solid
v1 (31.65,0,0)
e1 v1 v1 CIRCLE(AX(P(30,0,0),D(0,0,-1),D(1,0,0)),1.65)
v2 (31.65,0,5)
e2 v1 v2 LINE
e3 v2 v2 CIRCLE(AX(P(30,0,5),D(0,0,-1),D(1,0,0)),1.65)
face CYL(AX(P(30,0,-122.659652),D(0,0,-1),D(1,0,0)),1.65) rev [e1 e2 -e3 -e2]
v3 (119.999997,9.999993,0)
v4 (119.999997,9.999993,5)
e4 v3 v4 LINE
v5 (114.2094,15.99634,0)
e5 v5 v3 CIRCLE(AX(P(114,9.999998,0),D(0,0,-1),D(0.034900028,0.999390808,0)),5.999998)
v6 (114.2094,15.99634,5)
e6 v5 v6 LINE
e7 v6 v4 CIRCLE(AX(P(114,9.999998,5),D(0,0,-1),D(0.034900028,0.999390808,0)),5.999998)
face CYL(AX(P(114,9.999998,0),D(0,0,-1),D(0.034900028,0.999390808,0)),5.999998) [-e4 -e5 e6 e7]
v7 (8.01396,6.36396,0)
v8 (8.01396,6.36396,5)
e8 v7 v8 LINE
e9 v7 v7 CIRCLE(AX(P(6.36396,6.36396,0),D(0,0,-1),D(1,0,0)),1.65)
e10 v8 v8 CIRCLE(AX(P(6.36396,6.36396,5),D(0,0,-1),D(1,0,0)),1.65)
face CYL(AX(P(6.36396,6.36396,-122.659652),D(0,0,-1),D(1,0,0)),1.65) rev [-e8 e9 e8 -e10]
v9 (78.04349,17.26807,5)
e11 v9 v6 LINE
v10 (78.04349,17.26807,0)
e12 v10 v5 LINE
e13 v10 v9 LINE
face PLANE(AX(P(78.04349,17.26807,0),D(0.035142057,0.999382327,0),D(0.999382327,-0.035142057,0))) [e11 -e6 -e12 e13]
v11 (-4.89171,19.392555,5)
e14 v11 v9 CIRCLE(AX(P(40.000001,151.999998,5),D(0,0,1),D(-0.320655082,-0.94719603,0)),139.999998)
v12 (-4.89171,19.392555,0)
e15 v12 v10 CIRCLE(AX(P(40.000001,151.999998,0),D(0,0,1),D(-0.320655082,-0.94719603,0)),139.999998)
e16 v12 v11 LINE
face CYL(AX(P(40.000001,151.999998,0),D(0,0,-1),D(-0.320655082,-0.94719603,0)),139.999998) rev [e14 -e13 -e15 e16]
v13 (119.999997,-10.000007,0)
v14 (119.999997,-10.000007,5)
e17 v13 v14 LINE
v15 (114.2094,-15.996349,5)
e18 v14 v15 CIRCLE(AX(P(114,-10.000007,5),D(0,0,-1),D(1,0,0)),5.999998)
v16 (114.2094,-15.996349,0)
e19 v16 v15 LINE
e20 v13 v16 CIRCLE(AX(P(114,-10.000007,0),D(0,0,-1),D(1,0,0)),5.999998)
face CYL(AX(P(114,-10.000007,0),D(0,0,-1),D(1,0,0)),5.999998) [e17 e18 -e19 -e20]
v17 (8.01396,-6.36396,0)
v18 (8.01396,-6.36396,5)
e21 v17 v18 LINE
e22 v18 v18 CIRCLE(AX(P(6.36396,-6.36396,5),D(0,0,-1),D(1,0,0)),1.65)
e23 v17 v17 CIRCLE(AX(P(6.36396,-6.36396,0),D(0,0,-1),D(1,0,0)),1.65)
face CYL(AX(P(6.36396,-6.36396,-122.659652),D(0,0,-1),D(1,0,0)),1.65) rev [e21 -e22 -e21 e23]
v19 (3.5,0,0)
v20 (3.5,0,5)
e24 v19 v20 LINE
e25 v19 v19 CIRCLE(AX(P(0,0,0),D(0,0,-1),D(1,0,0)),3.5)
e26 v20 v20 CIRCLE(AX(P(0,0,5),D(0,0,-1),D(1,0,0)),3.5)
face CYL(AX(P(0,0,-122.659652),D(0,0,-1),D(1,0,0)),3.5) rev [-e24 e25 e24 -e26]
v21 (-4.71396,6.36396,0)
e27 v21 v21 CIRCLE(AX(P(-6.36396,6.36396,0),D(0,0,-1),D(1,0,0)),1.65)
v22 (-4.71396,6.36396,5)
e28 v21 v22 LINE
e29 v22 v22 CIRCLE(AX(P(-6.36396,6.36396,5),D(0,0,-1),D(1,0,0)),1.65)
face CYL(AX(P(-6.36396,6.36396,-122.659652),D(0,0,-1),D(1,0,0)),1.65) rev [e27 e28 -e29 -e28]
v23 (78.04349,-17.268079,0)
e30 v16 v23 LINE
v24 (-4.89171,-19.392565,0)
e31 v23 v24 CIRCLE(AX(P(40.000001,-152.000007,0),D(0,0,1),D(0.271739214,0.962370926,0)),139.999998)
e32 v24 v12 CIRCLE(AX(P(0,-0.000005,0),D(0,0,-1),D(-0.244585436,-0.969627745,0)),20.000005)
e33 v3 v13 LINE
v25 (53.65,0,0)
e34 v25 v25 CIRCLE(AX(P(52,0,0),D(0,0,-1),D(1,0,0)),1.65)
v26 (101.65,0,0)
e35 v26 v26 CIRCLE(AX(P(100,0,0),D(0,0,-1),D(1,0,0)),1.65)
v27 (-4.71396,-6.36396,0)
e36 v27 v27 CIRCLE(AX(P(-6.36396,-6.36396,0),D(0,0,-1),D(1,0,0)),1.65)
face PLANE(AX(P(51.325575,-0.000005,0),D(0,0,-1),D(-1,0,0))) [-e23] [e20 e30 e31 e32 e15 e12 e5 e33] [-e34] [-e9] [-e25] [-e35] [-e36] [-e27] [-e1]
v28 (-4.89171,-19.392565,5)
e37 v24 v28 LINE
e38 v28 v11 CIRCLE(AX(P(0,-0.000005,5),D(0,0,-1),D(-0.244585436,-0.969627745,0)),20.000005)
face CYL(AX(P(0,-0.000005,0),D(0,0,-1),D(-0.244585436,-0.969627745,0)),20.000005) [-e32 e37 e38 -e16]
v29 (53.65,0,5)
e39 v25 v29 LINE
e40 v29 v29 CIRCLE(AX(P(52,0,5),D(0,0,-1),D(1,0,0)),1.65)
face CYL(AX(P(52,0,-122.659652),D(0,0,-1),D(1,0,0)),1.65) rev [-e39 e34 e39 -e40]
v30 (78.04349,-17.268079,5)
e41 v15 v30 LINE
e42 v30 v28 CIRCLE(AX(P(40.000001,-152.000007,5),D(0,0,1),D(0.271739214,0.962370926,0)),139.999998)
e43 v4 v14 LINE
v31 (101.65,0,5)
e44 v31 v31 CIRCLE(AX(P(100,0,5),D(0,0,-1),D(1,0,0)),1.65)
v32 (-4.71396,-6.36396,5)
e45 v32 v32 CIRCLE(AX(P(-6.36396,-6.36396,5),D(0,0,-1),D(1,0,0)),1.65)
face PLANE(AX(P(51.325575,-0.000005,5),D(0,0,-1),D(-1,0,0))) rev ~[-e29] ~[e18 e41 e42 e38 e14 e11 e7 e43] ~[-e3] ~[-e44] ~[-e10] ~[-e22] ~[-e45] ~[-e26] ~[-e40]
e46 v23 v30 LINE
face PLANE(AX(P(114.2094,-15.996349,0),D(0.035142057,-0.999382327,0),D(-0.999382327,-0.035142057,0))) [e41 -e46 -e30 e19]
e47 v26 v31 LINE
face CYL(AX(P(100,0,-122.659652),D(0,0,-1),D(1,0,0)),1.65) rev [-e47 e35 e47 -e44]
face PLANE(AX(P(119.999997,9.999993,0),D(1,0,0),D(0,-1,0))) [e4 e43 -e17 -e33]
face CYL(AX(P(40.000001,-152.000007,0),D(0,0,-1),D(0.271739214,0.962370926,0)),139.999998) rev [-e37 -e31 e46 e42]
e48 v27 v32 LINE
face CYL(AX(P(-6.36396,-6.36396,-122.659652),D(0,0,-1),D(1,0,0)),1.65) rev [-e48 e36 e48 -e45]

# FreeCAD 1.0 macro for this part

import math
import FreeCAD as App
import Part
import Sketcher
from FreeCAD import Vector

doc = App.newDocument("Part")
body = doc.addObject("PartDesign::Body", "Body")

# Sketch on XY plane
sketch1 = doc.addObject("Sketcher::SketchObject", "Sketch")
body.addObject(sketch1)
sketch1.AttachmentSupport = (doc.XY_Plane, [""])
sketch1.MapMode = "FlatFace"
sketch1.addGeometry([
    Part.LineSegment(Vector(114, 16, 0), Vector(78, 17, 0)),  # 0
    Part.ArcOfCircle(Part.Circle(Vector(40, 152, 0), Vector(0, 0, 1), 140), math.radians(-109), math.radians(-74)),  # 1
    Part.ArcOfCircle(Part.Circle(Vector(0, 0, 0), Vector(0, 0, 1), 20), math.radians(104), math.radians(256)),  # 2
    Part.ArcOfCircle(Part.Circle(Vector(40, -152, 0), Vector(0, 0, 1), 140), math.radians(74), math.radians(109)),  # 3
    Part.LineSegment(Vector(78, -17, 0), Vector(114, -16, 0)),  # 4
    Part.ArcOfCircle(Part.Circle(Vector(114, -10, 0), Vector(0, 0, 1), 6), math.radians(-88), math.radians(0)),  # 5
    Part.LineSegment(Vector(120, -10, 0), Vector(120, 10, 0)),  # 6
    Part.ArcOfCircle(Part.Circle(Vector(114, 10, 0), Vector(0, 0, 1), 6), math.radians(0), math.radians(88)),  # 7
], False)
sketch1.addConstraint([
    Sketcher.Constraint("Coincident", 0, 2, 1, 2),
    Sketcher.Constraint("Coincident", 1, 1, 2, 1),
    Sketcher.Constraint("Coincident", 2, 2, 3, 2),
    Sketcher.Constraint("Coincident", 3, 1, 4, 1),
    Sketcher.Constraint("Coincident", 4, 2, 5, 1),
    Sketcher.Constraint("Tangent", 5, 2, 6, 1),
    Sketcher.Constraint("Tangent", 6, 2, 7, 1),
    Sketcher.Constraint("Coincident", 7, 2, 0, 1),
    Sketcher.Constraint("Vertical", 6),
    Sketcher.Constraint("Coincident", 2, 3, -1, 1),
    Sketcher.Constraint("Equal", 1, 3),
    Sketcher.Constraint("Equal", 5, 7),
    Sketcher.Constraint("Symmetric", 1, 3, 3, 3, -1),
    Sketcher.Constraint("Symmetric", 4, 2, 7, 2, -1),
    Sketcher.Constraint("Vertical", 0, 2, 3, 1),
    Sketcher.Constraint("DistanceY", 6, 1, 6, 2, 20.0),
    Sketcher.Constraint("DistanceX", -1, 1, 1, 3, 40.000001),
    Sketcher.Constraint("DistanceX", -1, 1, 5, 3, 114.0),
    Sketcher.Constraint("DistanceY", 3, 3, 5, 3, 142.0),
    Sketcher.Constraint("Radius", 1, 139.999998),
    Sketcher.Constraint("Radius", 2, 20.000005),
    Sketcher.Constraint("Radius", 5, 5.999998),
    Sketcher.Constraint("DistanceX", -1, 1, 4, 2, 114.2094),
    Sketcher.Constraint("DistanceX", 1, 1, 0, 2, 82.9352),
])
pad1 = doc.addObject("PartDesign::Pad", "Pad")
body.addObject(pad1)
pad1.Profile = sketch1
pad1.Length = 5

# Sketch on XY plane
sketch2 = doc.addObject("Sketcher::SketchObject", "Sketch001")
body.addObject(sketch2)
sketch2.AttachmentSupport = (doc.XY_Plane, [""])
sketch2.MapMode = "FlatFace"
sketch2.addGeometry([
    Part.Circle(Vector(-6.4, -6.4, 0), Vector(0, 0, 1), 1.6),  # 0
    Part.Circle(Vector(6.4, -6.4, 0), Vector(0, 0, 1), 1.6),  # 1
    Part.Circle(Vector(0, 0, 0), Vector(0, 0, 1), 3.5),  # 2
    Part.Circle(Vector(30, 0, 0), Vector(0, 0, 1), 1.6),  # 3
    Part.Circle(Vector(-6.4, 6.4, 0), Vector(0, 0, 1), 1.6),  # 4
    Part.Circle(Vector(6.4, 6.4, 0), Vector(0, 0, 1), 1.6),  # 5
    Part.Circle(Vector(52, 0, 0), Vector(0, 0, 1), 1.6),  # 6
    Part.Circle(Vector(100, 0, 0), Vector(0, 0, 1), 1.6),  # 7
], False)
sketch2.addConstraint([
    Sketcher.Constraint("Coincident", 2, 3, -1, 1),
    Sketcher.Constraint("Equal", 0, 1),
    Sketcher.Constraint("Equal", 1, 3),
    Sketcher.Constraint("Equal", 3, 4),
    Sketcher.Constraint("Equal", 4, 5),
    Sketcher.Constraint("Equal", 5, 6),
    Sketcher.Constraint("Equal", 6, 7),
    Sketcher.Constraint("Symmetric", 1, 3, 4, 3, -1, 1),
    Sketcher.Constraint("Symmetric", 0, 3, 5, 3, -1, 1),
    Sketcher.Constraint("Symmetric", 0, 3, 1, 3, -2),
    Sketcher.Constraint("PointOnObject", 3, 3, -1),
    Sketcher.Constraint("PointOnObject", 6, 3, -1),
    Sketcher.Constraint("PointOnObject", 7, 3, -1),
    Sketcher.Constraint("Diameter", 2, 7.0),
    Sketcher.Constraint("Diameter", 0, 3.3),
    Sketcher.Constraint("DistanceX", -1, 1, 3, 3, 30.0),
    Sketcher.Constraint("DistanceX", -1, 1, 6, 3, 52.0),
    Sketcher.Constraint("DistanceX", -1, 1, 7, 3, 100.0),
    Sketcher.Constraint("DistanceX", 0, 3, -1, 1, 6.36396),
    Sketcher.Constraint("DistanceY", 0, 3, -1, 1, 6.36396),
])
pocket1 = doc.addObject("PartDesign::Pocket", "Pocket")
body.addObject(pocket1)
pocket1.Profile = sketch2
pocket1.Type = "ThroughAll"
pocket1.Midplane = True

doc.recompute()
